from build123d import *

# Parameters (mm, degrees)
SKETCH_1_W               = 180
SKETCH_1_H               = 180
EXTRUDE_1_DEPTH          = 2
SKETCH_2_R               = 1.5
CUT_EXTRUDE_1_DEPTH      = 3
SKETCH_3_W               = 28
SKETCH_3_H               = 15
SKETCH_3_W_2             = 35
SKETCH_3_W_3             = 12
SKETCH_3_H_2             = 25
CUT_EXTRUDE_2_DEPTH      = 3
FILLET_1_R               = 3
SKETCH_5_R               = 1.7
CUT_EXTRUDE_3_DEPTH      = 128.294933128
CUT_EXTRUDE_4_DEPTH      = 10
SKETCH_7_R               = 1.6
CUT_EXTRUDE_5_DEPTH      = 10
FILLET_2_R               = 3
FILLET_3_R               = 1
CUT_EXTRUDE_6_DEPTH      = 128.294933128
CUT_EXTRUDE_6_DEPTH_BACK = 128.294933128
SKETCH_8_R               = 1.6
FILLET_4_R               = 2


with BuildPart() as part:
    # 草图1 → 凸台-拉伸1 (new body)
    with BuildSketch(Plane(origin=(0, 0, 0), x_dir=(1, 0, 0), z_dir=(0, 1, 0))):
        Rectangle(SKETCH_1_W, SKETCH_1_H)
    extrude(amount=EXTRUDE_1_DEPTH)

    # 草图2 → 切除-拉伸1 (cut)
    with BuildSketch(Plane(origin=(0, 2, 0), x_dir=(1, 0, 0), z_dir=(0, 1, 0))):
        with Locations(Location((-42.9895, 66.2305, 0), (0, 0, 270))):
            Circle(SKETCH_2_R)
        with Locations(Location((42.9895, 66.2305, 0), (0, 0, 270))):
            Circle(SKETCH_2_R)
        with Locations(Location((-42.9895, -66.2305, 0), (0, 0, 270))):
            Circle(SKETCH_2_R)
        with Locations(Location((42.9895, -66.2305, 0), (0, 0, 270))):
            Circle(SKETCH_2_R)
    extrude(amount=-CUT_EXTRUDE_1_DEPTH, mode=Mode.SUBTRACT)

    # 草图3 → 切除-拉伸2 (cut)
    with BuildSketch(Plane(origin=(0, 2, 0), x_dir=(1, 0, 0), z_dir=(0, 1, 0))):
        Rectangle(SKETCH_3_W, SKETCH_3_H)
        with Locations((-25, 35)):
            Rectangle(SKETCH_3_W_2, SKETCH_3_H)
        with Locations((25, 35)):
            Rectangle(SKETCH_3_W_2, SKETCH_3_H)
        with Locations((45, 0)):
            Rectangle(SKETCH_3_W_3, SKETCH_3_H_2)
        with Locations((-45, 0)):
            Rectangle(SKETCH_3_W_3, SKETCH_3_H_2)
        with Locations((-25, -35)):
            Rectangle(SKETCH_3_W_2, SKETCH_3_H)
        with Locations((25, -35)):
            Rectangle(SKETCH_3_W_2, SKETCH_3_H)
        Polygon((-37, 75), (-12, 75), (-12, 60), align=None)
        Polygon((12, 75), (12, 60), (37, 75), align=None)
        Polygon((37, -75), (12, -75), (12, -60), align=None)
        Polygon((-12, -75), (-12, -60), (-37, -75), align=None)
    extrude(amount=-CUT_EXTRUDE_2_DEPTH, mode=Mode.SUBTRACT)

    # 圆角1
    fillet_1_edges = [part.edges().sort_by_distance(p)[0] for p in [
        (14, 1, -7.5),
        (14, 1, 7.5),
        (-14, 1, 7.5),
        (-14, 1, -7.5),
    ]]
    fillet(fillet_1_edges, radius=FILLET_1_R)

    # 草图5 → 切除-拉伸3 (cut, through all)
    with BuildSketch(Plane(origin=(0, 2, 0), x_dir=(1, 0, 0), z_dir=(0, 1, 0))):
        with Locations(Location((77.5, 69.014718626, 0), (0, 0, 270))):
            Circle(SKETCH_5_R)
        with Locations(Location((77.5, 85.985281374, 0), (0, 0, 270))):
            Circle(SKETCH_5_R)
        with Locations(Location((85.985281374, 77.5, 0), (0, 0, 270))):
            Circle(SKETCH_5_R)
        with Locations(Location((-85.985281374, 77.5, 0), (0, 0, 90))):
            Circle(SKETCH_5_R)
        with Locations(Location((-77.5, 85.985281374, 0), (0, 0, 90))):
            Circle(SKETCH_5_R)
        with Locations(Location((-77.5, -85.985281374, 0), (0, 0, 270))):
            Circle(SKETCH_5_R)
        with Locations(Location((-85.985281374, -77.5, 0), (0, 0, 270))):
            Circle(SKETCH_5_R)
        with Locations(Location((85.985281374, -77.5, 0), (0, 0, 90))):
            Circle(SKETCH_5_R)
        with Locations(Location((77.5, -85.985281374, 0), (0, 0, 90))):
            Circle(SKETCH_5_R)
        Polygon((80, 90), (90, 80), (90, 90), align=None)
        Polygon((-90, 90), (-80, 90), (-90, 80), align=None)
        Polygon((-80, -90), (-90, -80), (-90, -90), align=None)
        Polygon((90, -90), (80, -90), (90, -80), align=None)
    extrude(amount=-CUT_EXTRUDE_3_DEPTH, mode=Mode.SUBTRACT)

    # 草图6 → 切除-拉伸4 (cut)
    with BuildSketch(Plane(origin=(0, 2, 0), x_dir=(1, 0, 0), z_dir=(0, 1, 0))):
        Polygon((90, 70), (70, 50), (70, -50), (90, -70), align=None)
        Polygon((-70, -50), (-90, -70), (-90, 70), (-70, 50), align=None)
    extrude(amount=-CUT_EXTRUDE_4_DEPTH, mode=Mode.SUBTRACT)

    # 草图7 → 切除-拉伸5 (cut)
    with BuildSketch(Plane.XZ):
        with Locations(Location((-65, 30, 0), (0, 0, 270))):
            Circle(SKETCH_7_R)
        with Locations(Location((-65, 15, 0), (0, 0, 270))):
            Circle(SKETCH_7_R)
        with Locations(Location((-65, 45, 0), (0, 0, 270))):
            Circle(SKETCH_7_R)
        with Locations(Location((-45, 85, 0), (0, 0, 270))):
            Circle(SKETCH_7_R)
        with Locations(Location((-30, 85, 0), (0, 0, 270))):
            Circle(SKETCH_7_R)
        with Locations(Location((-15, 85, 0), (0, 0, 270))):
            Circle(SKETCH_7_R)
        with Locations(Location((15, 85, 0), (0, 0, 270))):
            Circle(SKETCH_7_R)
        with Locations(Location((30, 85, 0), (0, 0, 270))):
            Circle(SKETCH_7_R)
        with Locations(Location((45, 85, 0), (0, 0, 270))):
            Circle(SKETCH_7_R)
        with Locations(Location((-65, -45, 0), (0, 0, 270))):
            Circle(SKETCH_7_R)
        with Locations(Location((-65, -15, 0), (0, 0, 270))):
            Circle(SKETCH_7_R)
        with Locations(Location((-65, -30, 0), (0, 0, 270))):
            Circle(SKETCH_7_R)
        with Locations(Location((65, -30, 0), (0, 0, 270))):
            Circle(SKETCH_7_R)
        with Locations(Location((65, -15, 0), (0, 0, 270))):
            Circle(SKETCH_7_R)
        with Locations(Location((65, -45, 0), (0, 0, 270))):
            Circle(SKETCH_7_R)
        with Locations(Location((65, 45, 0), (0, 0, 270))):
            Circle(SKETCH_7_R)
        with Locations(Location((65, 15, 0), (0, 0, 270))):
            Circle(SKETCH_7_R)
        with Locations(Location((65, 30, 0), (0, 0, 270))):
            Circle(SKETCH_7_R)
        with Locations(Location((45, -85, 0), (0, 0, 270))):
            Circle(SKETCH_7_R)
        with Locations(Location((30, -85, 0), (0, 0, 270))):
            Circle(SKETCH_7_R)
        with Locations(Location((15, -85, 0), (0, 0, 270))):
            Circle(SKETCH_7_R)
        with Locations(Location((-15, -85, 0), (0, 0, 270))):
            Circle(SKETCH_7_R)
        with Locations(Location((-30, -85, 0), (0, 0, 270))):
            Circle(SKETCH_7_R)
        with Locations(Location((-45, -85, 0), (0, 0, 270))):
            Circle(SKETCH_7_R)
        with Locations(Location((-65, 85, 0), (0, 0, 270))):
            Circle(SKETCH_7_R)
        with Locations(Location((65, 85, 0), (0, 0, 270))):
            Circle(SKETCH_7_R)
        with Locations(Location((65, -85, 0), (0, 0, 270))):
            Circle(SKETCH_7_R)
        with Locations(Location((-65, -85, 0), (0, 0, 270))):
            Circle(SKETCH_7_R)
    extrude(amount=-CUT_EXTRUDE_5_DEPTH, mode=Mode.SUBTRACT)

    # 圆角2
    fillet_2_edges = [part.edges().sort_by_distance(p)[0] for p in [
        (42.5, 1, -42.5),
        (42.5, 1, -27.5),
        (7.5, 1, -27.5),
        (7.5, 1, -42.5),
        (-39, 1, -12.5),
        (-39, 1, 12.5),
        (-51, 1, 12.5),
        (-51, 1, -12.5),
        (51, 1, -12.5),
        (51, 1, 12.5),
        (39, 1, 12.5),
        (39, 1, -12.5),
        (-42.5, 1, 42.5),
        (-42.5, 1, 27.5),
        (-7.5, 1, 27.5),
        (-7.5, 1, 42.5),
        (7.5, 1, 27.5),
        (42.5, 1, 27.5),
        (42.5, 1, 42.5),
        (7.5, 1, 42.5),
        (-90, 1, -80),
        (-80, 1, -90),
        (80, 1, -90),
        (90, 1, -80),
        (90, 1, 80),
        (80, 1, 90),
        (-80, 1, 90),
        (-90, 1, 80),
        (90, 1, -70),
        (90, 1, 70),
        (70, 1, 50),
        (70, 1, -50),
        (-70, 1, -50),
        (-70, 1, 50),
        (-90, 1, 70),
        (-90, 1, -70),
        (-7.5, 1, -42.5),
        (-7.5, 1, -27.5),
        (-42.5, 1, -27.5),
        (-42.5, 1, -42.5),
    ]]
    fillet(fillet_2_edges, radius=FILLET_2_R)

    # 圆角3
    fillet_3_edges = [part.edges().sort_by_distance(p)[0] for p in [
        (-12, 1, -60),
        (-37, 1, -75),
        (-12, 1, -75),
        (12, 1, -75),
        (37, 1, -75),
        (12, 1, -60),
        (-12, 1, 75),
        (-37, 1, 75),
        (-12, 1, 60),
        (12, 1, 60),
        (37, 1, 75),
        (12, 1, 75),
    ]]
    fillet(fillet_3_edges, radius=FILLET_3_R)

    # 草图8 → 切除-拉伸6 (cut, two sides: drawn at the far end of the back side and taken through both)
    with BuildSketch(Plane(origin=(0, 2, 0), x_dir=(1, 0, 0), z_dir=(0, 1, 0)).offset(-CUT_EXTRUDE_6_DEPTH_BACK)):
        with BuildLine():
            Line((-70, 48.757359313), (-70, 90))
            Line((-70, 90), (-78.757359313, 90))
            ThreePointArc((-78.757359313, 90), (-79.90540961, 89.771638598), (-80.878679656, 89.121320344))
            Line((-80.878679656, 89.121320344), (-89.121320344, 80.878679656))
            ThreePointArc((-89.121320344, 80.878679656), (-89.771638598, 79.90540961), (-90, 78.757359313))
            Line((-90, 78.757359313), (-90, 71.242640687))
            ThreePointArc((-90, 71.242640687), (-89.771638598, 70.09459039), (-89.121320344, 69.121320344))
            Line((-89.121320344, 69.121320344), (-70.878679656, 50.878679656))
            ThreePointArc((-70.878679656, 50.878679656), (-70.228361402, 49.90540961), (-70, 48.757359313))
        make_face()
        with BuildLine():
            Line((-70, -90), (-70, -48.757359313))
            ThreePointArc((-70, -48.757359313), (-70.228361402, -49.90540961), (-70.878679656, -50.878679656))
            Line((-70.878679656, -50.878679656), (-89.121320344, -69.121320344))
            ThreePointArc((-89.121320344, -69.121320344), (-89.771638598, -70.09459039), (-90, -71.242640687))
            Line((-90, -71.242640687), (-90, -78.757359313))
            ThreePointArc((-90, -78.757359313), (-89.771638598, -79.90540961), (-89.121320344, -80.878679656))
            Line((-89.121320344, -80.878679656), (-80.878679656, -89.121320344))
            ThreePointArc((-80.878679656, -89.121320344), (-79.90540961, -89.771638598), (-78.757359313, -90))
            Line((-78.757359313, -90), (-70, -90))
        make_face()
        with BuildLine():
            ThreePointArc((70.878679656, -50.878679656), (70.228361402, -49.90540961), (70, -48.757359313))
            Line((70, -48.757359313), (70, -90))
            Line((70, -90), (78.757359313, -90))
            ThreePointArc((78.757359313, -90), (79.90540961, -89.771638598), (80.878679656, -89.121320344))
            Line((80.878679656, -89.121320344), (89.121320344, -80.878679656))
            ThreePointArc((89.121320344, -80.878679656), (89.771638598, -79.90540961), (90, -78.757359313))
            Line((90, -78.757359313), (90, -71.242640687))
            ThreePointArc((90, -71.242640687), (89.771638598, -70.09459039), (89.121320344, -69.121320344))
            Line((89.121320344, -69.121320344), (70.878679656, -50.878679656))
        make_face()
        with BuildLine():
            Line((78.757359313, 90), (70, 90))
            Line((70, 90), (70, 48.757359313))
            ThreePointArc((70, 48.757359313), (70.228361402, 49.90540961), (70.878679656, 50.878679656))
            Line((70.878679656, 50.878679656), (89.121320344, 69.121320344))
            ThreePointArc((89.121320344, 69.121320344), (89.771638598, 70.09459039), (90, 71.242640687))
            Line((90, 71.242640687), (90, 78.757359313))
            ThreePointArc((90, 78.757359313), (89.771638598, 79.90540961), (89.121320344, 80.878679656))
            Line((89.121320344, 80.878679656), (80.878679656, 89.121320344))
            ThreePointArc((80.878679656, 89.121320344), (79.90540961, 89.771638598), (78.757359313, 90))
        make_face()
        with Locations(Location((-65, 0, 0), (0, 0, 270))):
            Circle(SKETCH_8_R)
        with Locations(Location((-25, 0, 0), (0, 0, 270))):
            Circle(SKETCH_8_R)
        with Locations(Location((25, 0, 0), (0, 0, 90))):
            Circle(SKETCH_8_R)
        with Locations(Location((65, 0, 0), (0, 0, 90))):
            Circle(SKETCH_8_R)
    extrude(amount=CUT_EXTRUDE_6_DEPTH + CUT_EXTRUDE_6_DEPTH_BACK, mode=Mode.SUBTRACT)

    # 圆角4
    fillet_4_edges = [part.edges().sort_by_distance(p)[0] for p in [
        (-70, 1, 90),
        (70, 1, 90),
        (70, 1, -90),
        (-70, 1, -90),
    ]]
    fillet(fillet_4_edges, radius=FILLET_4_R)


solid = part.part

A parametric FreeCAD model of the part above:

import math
import FreeCAD as App
import Part
import Sketcher
from FreeCAD import Vector


def edges_at(feature, points):
    """Names of the edges that pass closest to the given points."""
    edges = feature.Shape.Edges
    near = lambda p: min(range(len(edges)), key=lambda i: edges[i].distToShape(Part.Vertex(*p))[0])
    return sorted({f"Edge{near(p) + 1}" for p in points})

doc = App.newDocument("Part")
body = doc.addObject("PartDesign::Body", "Body")

# Sketch on XZ plane
sketch1 = body.newObject("Sketcher::SketchObject", "Sketch")
sketch1.AttachmentSupport = (doc.getObject("XZ_Plane"), [""])
sketch1.MapMode = "FlatFace"
sketch1.addGeometry(Part.LineSegment(Vector(-90, -90, 0), Vector(-90, 90, 0)), False)
sketch1.addGeometry(Part.LineSegment(Vector(-90, 90, 0), Vector(90, 90, 0)), False)
sketch1.addGeometry(Part.LineSegment(Vector(90, 90, 0), Vector(90, -90, 0)), False)
sketch1.addGeometry(Part.LineSegment(Vector(90, -90, 0), Vector(-90, -90, 0)), False)
sketch1.addConstraint(Sketcher.Constraint("Coincident", 0, 2, 1, 1))
sketch1.addConstraint(Sketcher.Constraint("Coincident", 1, 2, 2, 1))
sketch1.addConstraint(Sketcher.Constraint("Coincident", 2, 2, 3, 1))
sketch1.addConstraint(Sketcher.Constraint("Coincident", 3, 2, 0, 1))
sketch1.addConstraint(Sketcher.Constraint("Vertical", 0))
sketch1.addConstraint(Sketcher.Constraint("Horizontal", 1))
sketch1.addConstraint(Sketcher.Constraint("Vertical", 2))
sketch1.addConstraint(Sketcher.Constraint("Horizontal", 3))
sketch1.addConstraint(Sketcher.Constraint("Symmetric", 0, 2, 2, 2, -1, 1))
sketch1.addConstraint(Sketcher.Constraint("Equal", 3, 0))
sketch1.addConstraint(Sketcher.Constraint("DistanceX", 1, 1, 1, 2, 180.0))
pad1 = body.newObject("PartDesign::Pad", "Pad")
pad1.Profile = sketch1
pad1.Length = 2
pad1.Reversed = True

# Sketch on XZ plane
sketch2 = body.newObject("Sketcher::SketchObject", "Sketch001")
sketch2.AttachmentSupport = (doc.getObject("XZ_Plane"), [""])
sketch2.MapMode = "FlatFace"
sketch2.AttachmentOffset = App.Placement(Vector(0, 0, -2), App.Rotation())
sketch2.addGeometry(Part.Circle(Vector(-42.9895, -66.2305, 0), Vector(0, 0, 1), 1.5), False)
sketch2.addGeometry(Part.Circle(Vector(42.9895, -66.2305, 0), Vector(0, 0, 1), 1.5), False)
sketch2.addGeometry(Part.Circle(Vector(-42.9895, 66.2305, 0), Vector(0, 0, 1), 1.5), False)
sketch2.addGeometry(Part.Circle(Vector(42.9895, 66.2305, 0), Vector(0, 0, 1), 1.5), False)
sketch2.addConstraint(Sketcher.Constraint("Equal", 0, 1))
sketch2.addConstraint(Sketcher.Constraint("Equal", 1, 2))
sketch2.addConstraint(Sketcher.Constraint("Equal", 2, 3))
sketch2.addConstraint(Sketcher.Constraint("Symmetric", 1, 3, 2, 3, -1, 1))
sketch2.addConstraint(Sketcher.Constraint("Symmetric", 0, 3, 3, 3, -1, 1))
sketch2.addConstraint(Sketcher.Constraint("Symmetric", 0, 3, 1, 3, -2))
sketch2.addConstraint(Sketcher.Constraint("Diameter", 0, 3.0))
sketch2.addConstraint(Sketcher.Constraint("DistanceX", 0, 3, 1, 3, 85.979))
sketch2.addConstraint(Sketcher.Constraint("DistanceY", 0, 3, 2, 3, 132.461))
pocket1 = body.newObject("PartDesign::Pocket", "Pocket")
pocket1.Profile = sketch2
pocket1.Length = 3
pocket1.Reversed = True

# Sketch on XZ plane
sketch3 = body.newObject("Sketcher::SketchObject", "Sketch002")
sketch3.AttachmentSupport = (doc.getObject("XZ_Plane"), [""])
sketch3.MapMode = "FlatFace"
sketch3.AttachmentOffset = App.Placement(Vector(0, 0, -2), App.Rotation())
sketch3.addGeometry(Part.LineSegment(Vector(-14, -7.5, 0), Vector(-14, 7.5, 0)), False)
sketch3.addGeometry(Part.LineSegment(Vector(-14, 7.5, 0), Vector(14, 7.5, 0)), False)
sketch3.addGeometry(Part.LineSegment(Vector(14, 7.5, 0), Vector(14, -7.5, 0)), False)
sketch3.addGeometry(Part.LineSegment(Vector(14, -7.5, 0), Vector(-14, -7.5, 0)), False)
sketch3.addGeometry(Part.LineSegment(Vector(-42.5, -42.5, 0), Vector(-42.5, -27.5, 0)), False)
sketch3.addGeometry(Part.LineSegment(Vector(-42.5, -27.5, 0), Vector(-7.5, -27.5, 0)), False)
sketch3.addGeometry(Part.LineSegment(Vector(-7.5, -27.5, 0), Vector(-7.5, -42.5, 0)), False)
sketch3.addGeometry(Part.LineSegment(Vector(-7.5, -42.5, 0), Vector(-42.5, -42.5, 0)), False)
sketch3.addGeometry(Part.LineSegment(Vector(7.5, -42.5, 0), Vector(7.5, -27.5, 0)), False)
sketch3.addGeometry(Part.LineSegment(Vector(7.5, -27.5, 0), Vector(42.5, -27.5, 0)), False)
sketch3.addGeometry(Part.LineSegment(Vector(42.5, -27.5, 0), Vector(42.5, -42.5, 0)), False)
sketch3.addGeometry(Part.LineSegment(Vector(42.5, -42.5, 0), Vector(7.5, -42.5, 0)), False)
sketch3.addGeometry(Part.LineSegment(Vector(39, -12.5, 0), Vector(39, 12.5, 0)), False)
sketch3.addGeometry(Part.LineSegment(Vector(39, 12.5, 0), Vector(51, 12.5, 0)), False)
sketch3.addGeometry(Part.LineSegment(Vector(51, 12.5, 0), Vector(51, -12.5, 0)), False)
sketch3.addGeometry(Part.LineSegment(Vector(51, -12.5, 0), Vector(39, -12.5, 0)), False)
sketch3.addGeometry(Part.LineSegment(Vector(-51, -12.5, 0), Vector(-51, 12.5, 0)), False)
sketch3.addGeometry(Part.LineSegment(Vector(-51, 12.5, 0), Vector(-39, 12.5, 0)), False)
sketch3.addGeometry(Part.LineSegment(Vector(-39, 12.5, 0), Vector(-39, -12.5, 0)), False)
sketch3.addGeometry(Part.LineSegment(Vector(-39, -12.5, 0), Vector(-51, -12.5, 0)), False)
sketch3.addGeometry(Part.LineSegment(Vector(-42.5, 27.5, 0), Vector(-42.5, 42.5, 0)), False)
sketch3.addGeometry(Part.LineSegment(Vector(-42.5, 42.5, 0), Vector(-7.5, 42.5, 0)), False)
sketch3.addGeometry(Part.LineSegment(Vector(-7.5, 42.5, 0), Vector(-7.5, 27.5, 0)), False)
sketch3.addGeometry(Part.LineSegment(Vector(-7.5, 27.5, 0), Vector(-42.5, 27.5, 0)), False)
sketch3.addGeometry(Part.LineSegment(Vector(7.5, 27.5, 0), Vector(7.5, 42.5, 0)), False)
sketch3.addGeometry(Part.LineSegment(Vector(7.5, 42.5, 0), Vector(42.5, 42.5, 0)), False)
sketch3.addGeometry(Part.LineSegment(Vector(42.5, 42.5, 0), Vector(42.5, 27.5, 0)), False)
sketch3.addGeometry(Part.LineSegment(Vector(42.5, 27.5, 0), Vector(7.5, 27.5, 0)), False)
sketch3.addGeometry(Part.LineSegment(Vector(-12, -75, 0), Vector(-37, -75, 0)), False)
sketch3.addGeometry(Part.LineSegment(Vector(-37, -75, 0), Vector(-12, -60, 0)), False)
sketch3.addGeometry(Part.LineSegment(Vector(-12, -60, 0), Vector(-12, -75, 0)), False)
sketch3.addGeometry(Part.LineSegment(Vector(12, -75, 0), Vector(12, -60, 0)), False)
sketch3.addGeometry(Part.LineSegment(Vector(12, -60, 0), Vector(37, -75, 0)), False)
sketch3.addGeometry(Part.LineSegment(Vector(37, -75, 0), Vector(12, -75, 0)), False)
sketch3.addGeometry(Part.LineSegment(Vector(12, 75, 0), Vector(37, 75, 0)), False)
sketch3.addGeometry(Part.LineSegment(Vector(37, 75, 0), Vector(12, 60, 0)), False)
sketch3.addGeometry(Part.LineSegment(Vector(12, 60, 0), Vector(12, 75, 0)), False)
sketch3.addGeometry(Part.LineSegment(Vector(-12, 75, 0), Vector(-12, 60, 0)), False)
sketch3.addGeometry(Part.LineSegment(Vector(-12, 60, 0), Vector(-37, 75, 0)), False)
sketch3.addGeometry(Part.LineSegment(Vector(-37, 75, 0), Vector(-12, 75, 0)), False)
sketch3.addConstraint(Sketcher.Constraint("Coincident", 0, 2, 1, 1))
sketch3.addConstraint(Sketcher.Constraint("Coincident", 1, 2, 2, 1))
sketch3.addConstraint(Sketcher.Constraint("Coincident", 2, 2, 3, 1))
sketch3.addConstraint(Sketcher.Constraint("Coincident", 3, 2, 0, 1))
sketch3.addConstraint(Sketcher.Constraint("Coincident", 4, 2, 5, 1))
sketch3.addConstraint(Sketcher.Constraint("Coincident", 5, 2, 6, 1))
sketch3.addConstraint(Sketcher.Constraint("Coincident", 6, 2, 7, 1))
sketch3.addConstraint(Sketcher.Constraint("Coincident", 7, 2, 4, 1))
sketch3.addConstraint(Sketcher.Constraint("Coincident", 8, 2, 9, 1))
sketch3.addConstraint(Sketcher.Constraint("Coincident", 9, 2, 10, 1))
sketch3.addConstraint(Sketcher.Constraint("Coincident", 10, 2, 11, 1))
sketch3.addConstraint(Sketcher.Constraint("Coincident", 11, 2, 8, 1))
sketch3.addConstraint(Sketcher.Constraint("Coincident", 12, 2, 13, 1))
sketch3.addConstraint(Sketcher.Constraint("Coincident", 13, 2, 14, 1))
sketch3.addConstraint(Sketcher.Constraint("Coincident", 14, 2, 15, 1))
sketch3.addConstraint(Sketcher.Constraint("Coincident", 15, 2, 12, 1))
sketch3.addConstraint(Sketcher.Constraint("Coincident", 16, 2, 17, 1))
sketch3.addConstraint(Sketcher.Constraint("Coincident", 17, 2, 18, 1))
sketch3.addConstraint(Sketcher.Constraint("Coincident", 18, 2, 19, 1))
sketch3.addConstraint(Sketcher.Constraint("Coincident", 19, 2, 16, 1))
sketch3.addConstraint(Sketcher.Constraint("Coincident", 20, 2, 21, 1))
sketch3.addConstraint(Sketcher.Constraint("Coincident", 21, 2, 22, 1))
sketch3.addConstraint(Sketcher.Constraint("Coincident", 22, 2, 23, 1))
sketch3.addConstraint(Sketcher.Constraint("Coincident", 23, 2, 20, 1))
sketch3.addConstraint(Sketcher.Constraint("Coincident", 24, 2, 25, 1))
sketch3.addConstraint(Sketcher.Constraint("Coincident", 25, 2, 26, 1))
sketch3.addConstraint(Sketcher.Constraint("Coincident", 26, 2, 27, 1))
sketch3.addConstraint(Sketcher.Constraint("Coincident", 27, 2, 24, 1))
sketch3.addConstraint(Sketcher.Constraint("Coincident", 28, 2, 29, 1))
sketch3.addConstraint(Sketcher.Constraint("Coincident", 29, 2, 30, 1))
sketch3.addConstraint(Sketcher.Constraint("Coincident", 30, 2, 28, 1))
sketch3.addConstraint(Sketcher.Constraint("Coincident", 31, 2, 32, 1))
sketch3.addConstraint(Sketcher.Constraint("Coincident", 32, 2, 33, 1))
sketch3.addConstraint(Sketcher.Constraint("Coincident", 33, 2, 31, 1))
sketch3.addConstraint(Sketcher.Constraint("Coincident", 34, 2, 35, 1))
sketch3.addConstraint(Sketcher.Constraint("Coincident", 35, 2, 36, 1))
sketch3.addConstraint(Sketcher.Constraint("Coincident", 36, 2, 34, 1))
sketch3.addConstraint(Sketcher.Constraint("Coincident", 37, 2, 38, 1))
sketch3.addConstraint(Sketcher.Constraint("Coincident", 38, 2, 39, 1))
sketch3.addConstraint(Sketcher.Constraint("Coincident", 39, 2, 37, 1))
sketch3.addConstraint(Sketcher.Constraint("Vertical", 0))
sketch3.addConstraint(Sketcher.Constraint("Horizontal", 1))
sketch3.addConstraint(Sketcher.Constraint("Vertical", 2))
sketch3.addConstraint(Sketcher.Constraint("Horizontal", 3))
sketch3.addConstraint(Sketcher.Constraint("Vertical", 4))
sketch3.addConstraint(Sketcher.Constraint("Horizontal", 5))
sketch3.addConstraint(Sketcher.Constraint("Vertical", 6))
sketch3.addConstraint(Sketcher.Constraint("Horizontal", 7))
sketch3.addConstraint(Sketcher.Constraint("Vertical", 8))
sketch3.addConstraint(Sketcher.Constraint("Horizontal", 9))
sketch3.addConstraint(Sketcher.Constraint("Vertical", 10))
sketch3.addConstraint(Sketcher.Constraint("Horizontal", 11))
sketch3.addConstraint(Sketcher.Constraint("Vertical", 12))
sketch3.addConstraint(Sketcher.Constraint("Horizontal", 13))
sketch3.addConstraint(Sketcher.Constraint("Vertical", 14))
sketch3.addConstraint(Sketcher.Constraint("Horizontal", 15))
sketch3.addConstraint(Sketcher.Constraint("Vertical", 16))
sketch3.addConstraint(Sketcher.Constraint("Horizontal", 17))
sketch3.addConstraint(Sketcher.Constraint("Vertical", 18))
sketch3.addConstraint(Sketcher.Constraint("Horizontal", 19))
sketch3.addConstraint(Sketcher.Constraint("Vertical", 20))
sketch3.addConstraint(Sketcher.Constraint("Horizontal", 21))
sketch3.addConstraint(Sketcher.Constraint("Vertical", 22))
sketch3.addConstraint(Sketcher.Constraint("Horizontal", 23))
sketch3.addConstraint(Sketcher.Constraint("Vertical", 24))
sketch3.addConstraint(Sketcher.Constraint("Horizontal", 25))
sketch3.addConstraint(Sketcher.Constraint("Vertical", 26))
sketch3.addConstraint(Sketcher.Constraint("Horizontal", 27))
sketch3.addConstraint(Sketcher.Constraint("Horizontal", 28))
sketch3.addConstraint(Sketcher.Constraint("Vertical", 30))
sketch3.addConstraint(Sketcher.Constraint("Vertical", 31))
sketch3.addConstraint(Sketcher.Constraint("Horizontal", 33))
sketch3.addConstraint(Sketcher.Constraint("Horizontal", 34))
sketch3.addConstraint(Sketcher.Constraint("Vertical", 36))
sketch3.addConstraint(Sketcher.Constraint("Vertical", 37))
sketch3.addConstraint(Sketcher.Constraint("Horizontal", 39))
sketch3.addConstraint(Sketcher.Constraint("Symmetric", 0, 2, 2, 2, -1, 1))
sketch3.addConstraint(Sketcher.Constraint("Symmetric", 14, 2, 16, 2, -1, 1))
sketch3.addConstraint(Sketcher.Constraint("Symmetric", 12, 2, 18, 2, -1, 1))
sketch3.addConstraint(Sketcher.Constraint("Symmetric", 10, 2, 20, 2, -1, 1))
sketch3.addConstraint(Sketcher.Constraint("Symmetric", 8, 2, 22, 2, -1, 1))
sketch3.addConstraint(Sketcher.Constraint("Symmetric", 6, 2, 24, 2, -1, 1))
sketch3.addConstraint(Sketcher.Constraint("Symmetric", 4, 2, 26, 2, -1, 1))
sketch3.addConstraint(Sketcher.Constraint("Symmetric", 28, 2, 34, 2, -1, 1))
sketch3.addConstraint(Sketcher.Constraint("Symmetric", 29, 2, 35, 2, -1, 1))
sketch3.addConstraint(Sketcher.Constraint("Symmetric", 31, 2, 37, 2, -1, 1))
sketch3.addConstraint(Sketcher.Constraint("Symmetric", 32, 2, 38, 2, -1, 1))
sketch3.addConstraint(Sketcher.Constraint("Symmetric", 5, 2, 8, 2, -2))
sketch3.addConstraint(Sketcher.Constraint("Symmetric", 7, 2, 10, 2, -2))
sketch3.addConstraint(Sketcher.Constraint("Symmetric", 29, 2, 31, 2, -2))
sketch3.addConstraint(Sketcher.Constraint("Symmetric", 28, 2, 32, 2, -2))
sketch3.addConstraint(Sketcher.Constraint("Horizontal", 13, 2, 16, 2))
sketch3.addConstraint(Sketcher.Constraint("Equal", 2, 4))
sketch3.addConstraint(Sketcher.Constraint("Equal", 39, 12))
sketch3.addConstraint(Sketcher.Constraint("Equal", 26, 30))
sketch3.addConstraint(Sketcher.Constraint("DistanceX", 1, 1, 1, 2, 28.0))
sketch3.addConstraint(Sketcher.Constraint("DistanceX", 5, 1, 5, 2, 35.0))
sketch3.addConstraint(Sketcher.Constraint("DistanceX", 13, 1, 13, 2, 12.0))
sketch3.addConstraint(Sketcher.Constraint("DistanceX", 28, 2, 28, 1, 25.0))
sketch3.addConstraint(Sketcher.Constraint("DistanceY", 0, 1, 0, 2, 15.0))
sketch3.addConstraint(Sketcher.Constraint("DistanceX", -1, 1, 12, 2, 39.0))
sketch3.addConstraint(Sketcher.Constraint("DistanceX", 28, 2, -1, 1, 37.0))
sketch3.addConstraint(Sketcher.Constraint("DistanceY", 28, 2, -1, 1, 75.0))
sketch3.addConstraint(Sketcher.Constraint("DistanceY", 4, 2, 3, 2, 20.0))
sketch3.addConstraint(Sketcher.Constraint("DistanceX", 5, 2, 8, 2, 15.0))
pocket2 = body.newObject("PartDesign::Pocket", "Pocket001")
pocket2.Profile = sketch3
pocket2.Length = 3
pocket2.Reversed = True
doc.recompute()

fillet = body.newObject("PartDesign::Fillet", "Fillet")
fillet.Base = (pocket2, edges_at(pocket2, [
    (14, 1, -7.5),
    (14, 1, 7.5),
    (-14, 1, 7.5),
    (-14, 1, -7.5),
]))
fillet.Radius = 3

# Sketch on XZ plane
sketch4 = body.newObject("Sketcher::SketchObject", "Sketch003")
sketch4.AttachmentSupport = (doc.getObject("XZ_Plane"), [""])
sketch4.MapMode = "FlatFace"
sketch4.AttachmentOffset = App.Placement(Vector(0, 0, -2), App.Rotation())
sketch4.addGeometry(Part.Circle(Vector(77.5, -69.014719, 0), Vector(0, 0, 1), 1.7), False)
sketch4.addGeometry(Part.Circle(Vector(77.5, -85.985281, 0), Vector(0, 0, 1), 1.7), False)
sketch4.addGeometry(Part.Circle(Vector(85.985281, -77.5, 0), Vector(0, 0, 1), 1.7), False)
sketch4.addGeometry(Part.Circle(Vector(-85.985281, -77.5, 0), Vector(0, 0, 1), 1.7), False)
sketch4.addGeometry(Part.Circle(Vector(-77.5, -85.985281, 0), Vector(0, 0, 1), 1.7), False)
sketch4.addGeometry(Part.Circle(Vector(-77.5, 85.985281, 0), Vector(0, 0, 1), 1.7), False)
sketch4.addGeometry(Part.Circle(Vector(-85.985281, 77.5, 0), Vector(0, 0, 1), 1.7), False)
sketch4.addGeometry(Part.Circle(Vector(85.985281, 77.5, 0), Vector(0, 0, 1), 1.7), False)
sketch4.addGeometry(Part.Circle(Vector(77.5, 85.985281, 0), Vector(0, 0, 1), 1.7), False)
sketch4.addGeometry(Part.LineSegment(Vector(80, -90, 0), Vector(90, -80, 0)), False)
sketch4.addGeometry(Part.LineSegment(Vector(90, -80, 0), Vector(90, -90, 0)), False)
sketch4.addGeometry(Part.LineSegment(Vector(90, -90, 0), Vector(80, -90, 0)), False)
sketch4.addGeometry(Part.LineSegment(Vector(-80, -90, 0), Vector(-90, -90, 0)), False)
sketch4.addGeometry(Part.LineSegment(Vector(-90, -90, 0), Vector(-90, -80, 0)), False)
sketch4.addGeometry(Part.LineSegment(Vector(-90, -80, 0), Vector(-80, -90, 0)), False)
sketch4.addGeometry(Part.LineSegment(Vector(-80, 90, 0), Vector(-90, 80, 0)), False)
sketch4.addGeometry(Part.LineSegment(Vector(-90, 80, 0), Vector(-90, 90, 0)), False)
sketch4.addGeometry(Part.LineSegment(Vector(-90, 90, 0), Vector(-80, 90, 0)), False)
sketch4.addGeometry(Part.LineSegment(Vector(80, 90, 0), Vector(90, 90, 0)), False)
sketch4.addGeometry(Part.LineSegment(Vector(90, 90, 0), Vector(90, 80, 0)), False)
sketch4.addGeometry(Part.LineSegment(Vector(90, 80, 0), Vector(80, 90, 0)), False)
sketch4.addConstraint(Sketcher.Constraint("Coincident", 9, 2, 10, 1))
sketch4.addConstraint(Sketcher.Constraint("Coincident", 10, 2, 11, 1))
sketch4.addConstraint(Sketcher.Constraint("Coincident", 11, 2, 9, 1))
sketch4.addConstraint(Sketcher.Constraint("Coincident", 12, 2, 13, 1))
sketch4.addConstraint(Sketcher.Constraint("Coincident", 13, 2, 14, 1))
sketch4.addConstraint(Sketcher.Constraint("Coincident", 14, 2, 12, 1))
sketch4.addConstraint(Sketcher.Constraint("Coincident", 15, 2, 16, 1))
sketch4.addConstraint(Sketcher.Constraint("Coincident", 16, 2, 17, 1))
sketch4.addConstraint(Sketcher.Constraint("Coincident", 17, 2, 15, 1))
sketch4.addConstraint(Sketcher.Constraint("Coincident", 18, 2, 19, 1))
sketch4.addConstraint(Sketcher.Constraint("Coincident", 19, 2, 20, 1))
sketch4.addConstraint(Sketcher.Constraint("Coincident", 20, 2, 18, 1))
sketch4.addConstraint(Sketcher.Constraint("Vertical", 10))
sketch4.addConstraint(Sketcher.Constraint("Horizontal", 11))
sketch4.addConstraint(Sketcher.Constraint("Horizontal", 12))
sketch4.addConstraint(Sketcher.Constraint("Vertical", 13))
sketch4.addConstraint(Sketcher.Constraint("Vertical", 16))
sketch4.addConstraint(Sketcher.Constraint("Horizontal", 17))
sketch4.addConstraint(Sketcher.Constraint("Horizontal", 18))
sketch4.addConstraint(Sketcher.Constraint("Vertical", 19))
sketch4.addConstraint(Sketcher.Constraint("Equal", 0, 1))
sketch4.addConstraint(Sketcher.Constraint("Equal", 1, 2))
sketch4.addConstraint(Sketcher.Constraint("Equal", 2, 3))
sketch4.addConstraint(Sketcher.Constraint("Equal", 3, 4))
sketch4.addConstraint(Sketcher.Constraint("Equal", 4, 5))
sketch4.addConstraint(Sketcher.Constraint("Equal", 5, 6))
sketch4.addConstraint(Sketcher.Constraint("Equal", 6, 7))
sketch4.addConstraint(Sketcher.Constraint("Equal", 7, 8))
sketch4.addConstraint(Sketcher.Constraint("Symmetric", 1, 3, 5, 3, -1, 1))
sketch4.addConstraint(Sketcher.Constraint("Symmetric", 2, 3, 6, 3, -1, 1))
sketch4.addConstraint(Sketcher.Constraint("Symmetric", 3, 3, 7, 3, -1, 1))
sketch4.addConstraint(Sketcher.Constraint("Symmetric", 4, 3, 8, 3, -1, 1))
sketch4.addConstraint(Sketcher.Constraint("Symmetric", 9, 2, 15, 2, -1, 1))
sketch4.addConstraint(Sketcher.Constraint("Symmetric", 11, 2, 17, 2, -1, 1))
sketch4.addConstraint(Sketcher.Constraint("Symmetric", 12, 2, 18, 2, -1, 1))
sketch4.addConstraint(Sketcher.Constraint("Symmetric", 2, 3, 3, 3, -2))
sketch4.addConstraint(Sketcher.Constraint("Symmetric", 1, 3, 4, 3, -2))
sketch4.addConstraint(Sketcher.Constraint("Symmetric", 10, 2, 12, 2, -2))
sketch4.addConstraint(Sketcher.Constraint("Perpendicular", 9, 14))
sketch4.addConstraint(Sketcher.Constraint("Perpendicular", 15, 20))
sketch4.addConstraint(Sketcher.Constraint("Horizontal", 9, 2, 13, 2))
sketch4.addConstraint(Sketcher.Constraint("Horizontal", 15, 2, 19, 2))
sketch4.addConstraint(Sketcher.Constraint("Vertical", 0, 3, 1, 3))
sketch4.addConstraint(Sketcher.Constraint("Vertical", 14, 2, 17, 2))
sketch4.addConstraint(Sketcher.Constraint("Diameter", 0, 3.4))
sketch4.addConstraint(Sketcher.Constraint("DistanceX", 11, 2, 11, 1, 10.0))
sketch4.addConstraint(Sketcher.Constraint("DistanceX", -1, 1, 9, 2, 90.0))
sketch4.addConstraint(Sketcher.Constraint("DistanceY", 9, 2, -1, 1, 80.0))
sketch4.addConstraint(Sketcher.Constraint("DistanceX", 4, 3, 1, 3, 155.0))
sketch4.addConstraint(Sketcher.Constraint("DistanceY", 0, 3, 5, 3, 155.0))
sketch4.addConstraint(Sketcher.Constraint("DistanceY", 3, 3, 6, 3, 155.0))
sketch4.addConstraint(Sketcher.Constraint("DistanceY", 0, 3, -1, 1, 69.014719))
sketch4.addConstraint(Sketcher.Constraint("DistanceX", -1, 1, 2, 3, 85.985281))
pocket3 = body.newObject("PartDesign::Pocket", "Pocket002")
pocket3.Profile = sketch4
pocket3.Type = "ThroughAll"
pocket3.Reversed = True

# Sketch on XZ plane
sketch5 = body.newObject("Sketcher::SketchObject", "Sketch004")
sketch5.AttachmentSupport = (doc.getObject("XZ_Plane"), [""])
sketch5.MapMode = "FlatFace"
sketch5.AttachmentOffset = App.Placement(Vector(0, 0, -2), App.Rotation())
sketch5.addGeometry(Part.LineSegment(Vector(90, -70, 0), Vector(70, -50, 0)), False)
sketch5.addGeometry(Part.LineSegment(Vector(70, -50, 0), Vector(70, 50, 0)), False)
sketch5.addGeometry(Part.LineSegment(Vector(70, 50, 0), Vector(90, 70, 0)), False)
sketch5.addGeometry(Part.LineSegment(Vector(90, 70, 0), Vector(90, -70, 0)), False)
sketch5.addGeometry(Part.LineSegment(Vector(-90, 70, 0), Vector(-70, 50, 0)), False)
sketch5.addGeometry(Part.LineSegment(Vector(-70, 50, 0), Vector(-70, -50, 0)), False)
sketch5.addGeometry(Part.LineSegment(Vector(-70, -50, 0), Vector(-90, -70, 0)), False)
sketch5.addGeometry(Part.LineSegment(Vector(-90, -70, 0), Vector(-90, 70, 0)), False)
sketch5.addConstraint(Sketcher.Constraint("Coincident", 0, 2, 1, 1))
sketch5.addConstraint(Sketcher.Constraint("Coincident", 1, 2, 2, 1))
sketch5.addConstraint(Sketcher.Constraint("Coincident", 2, 2, 3, 1))
sketch5.addConstraint(Sketcher.Constraint("Coincident", 3, 2, 0, 1))
sketch5.addConstraint(Sketcher.Constraint("Coincident", 4, 2, 5, 1))
sketch5.addConstraint(Sketcher.Constraint("Coincident", 5, 2, 6, 1))
sketch5.addConstraint(Sketcher.Constraint("Coincident", 6, 2, 7, 1))
sketch5.addConstraint(Sketcher.Constraint("Coincident", 7, 2, 4, 1))
sketch5.addConstraint(Sketcher.Constraint("Vertical", 1))
sketch5.addConstraint(Sketcher.Constraint("Vertical", 3))
sketch5.addConstraint(Sketcher.Constraint("Vertical", 5))
sketch5.addConstraint(Sketcher.Constraint("Vertical", 7))
sketch5.addConstraint(Sketcher.Constraint("Symmetric", 0, 2, 4, 2, -1, 1))
sketch5.addConstraint(Sketcher.Constraint("Symmetric", 2, 2, 6, 2, -1, 1))
sketch5.addConstraint(Sketcher.Constraint("Perpendicular", 0, 2))
sketch5.addConstraint(Sketcher.Constraint("Perpendicular", 2, 4))
sketch5.addConstraint(Sketcher.Constraint("Perpendicular", 4, 6))
sketch5.addConstraint(Sketcher.Constraint("Horizontal", 1, 2, 4, 2))
sketch5.addConstraint(Sketcher.Constraint("Horizontal", 3, 2, 6, 2))
sketch5.addConstraint(Sketcher.Constraint("DistanceY", 1, 1, 1, 2, 100.0))
sketch5.addConstraint(Sketcher.Constraint("DistanceY", 3, 2, 3, 1, 140.0))
sketch5.addConstraint(Sketcher.Constraint("DistanceX", -1, 1, 0, 2, 70.0))
pocket4 = body.newObject("PartDesign::Pocket", "Pocket003")
pocket4.Profile = sketch5
pocket4.Length = 10
pocket4.Reversed = True

# Sketch on XZ plane
sketch6 = body.newObject("Sketcher::SketchObject", "Sketch005")
sketch6.AttachmentSupport = (doc.getObject("XZ_Plane"), [""])
sketch6.MapMode = "FlatFace"
sketch6.addGeometry(Part.Circle(Vector(-65, 30, 0), Vector(0, 0, 1), 1.6), False)
sketch6.addGeometry(Part.Circle(Vector(-65, 15, 0), Vector(0, 0, 1), 1.6), False)
sketch6.addGeometry(Part.Circle(Vector(-65, 45, 0), Vector(0, 0, 1), 1.6), False)
sketch6.addGeometry(Part.Circle(Vector(-45, 85, 0), Vector(0, 0, 1), 1.6), False)
sketch6.addGeometry(Part.Circle(Vector(-30, 85, 0), Vector(0, 0, 1), 1.6), False)
sketch6.addGeometry(Part.Circle(Vector(-15, 85, 0), Vector(0, 0, 1), 1.6), False)
sketch6.addGeometry(Part.Circle(Vector(15, 85, 0), Vector(0, 0, 1), 1.6), False)
sketch6.addGeometry(Part.Circle(Vector(30, 85, 0), Vector(0, 0, 1), 1.6), False)
sketch6.addGeometry(Part.Circle(Vector(45, 85, 0), Vector(0, 0, 1), 1.6), False)
sketch6.addGeometry(Part.Circle(Vector(-65, -45, 0), Vector(0, 0, 1), 1.6), False)
sketch6.addGeometry(Part.Circle(Vector(-65, -15, 0), Vector(0, 0, 1), 1.6), False)
sketch6.addGeometry(Part.Circle(Vector(-65, -30, 0), Vector(0, 0, 1), 1.6), False)
sketch6.addGeometry(Part.Circle(Vector(65, -30, 0), Vector(0, 0, 1), 1.6), False)
sketch6.addGeometry(Part.Circle(Vector(65, -15, 0), Vector(0, 0, 1), 1.6), False)
sketch6.addGeometry(Part.Circle(Vector(65, -45, 0), Vector(0, 0, 1), 1.6), False)
sketch6.addGeometry(Part.Circle(Vector(65, 45, 0), Vector(0, 0, 1), 1.6), False)
sketch6.addGeometry(Part.Circle(Vector(65, 15, 0), Vector(0, 0, 1), 1.6), False)
sketch6.addGeometry(Part.Circle(Vector(65, 30, 0), Vector(0, 0, 1), 1.6), False)
sketch6.addGeometry(Part.Circle(Vector(45, -85, 0), Vector(0, 0, 1), 1.6), False)
sketch6.addGeometry(Part.Circle(Vector(30, -85, 0), Vector(0, 0, 1), 1.6), False)
sketch6.addGeometry(Part.Circle(Vector(15, -85, 0), Vector(0, 0, 1), 1.6), False)
sketch6.addGeometry(Part.Circle(Vector(-15, -85, 0), Vector(0, 0, 1), 1.6), False)
sketch6.addGeometry(Part.Circle(Vector(-30, -85, 0), Vector(0, 0, 1), 1.6), False)
sketch6.addGeometry(Part.Circle(Vector(-45, -85, 0), Vector(0, 0, 1), 1.6), False)
sketch6.addGeometry(Part.Circle(Vector(-65, 85, 0), Vector(0, 0, 1), 1.6), False)
sketch6.addGeometry(Part.Circle(Vector(65, 85, 0), Vector(0, 0, 1), 1.6), False)
sketch6.addGeometry(Part.Circle(Vector(65, -85, 0), Vector(0, 0, 1), 1.6), False)
sketch6.addGeometry(Part.Circle(Vector(-65, -85, 0), Vector(0, 0, 1), 1.6), False)
sketch6.addConstraint(Sketcher.Constraint("Equal", 0, 1))
sketch6.addConstraint(Sketcher.Constraint("Equal", 1, 2))
sketch6.addConstraint(Sketcher.Constraint("Equal", 2, 3))
sketch6.addConstraint(Sketcher.Constraint("Equal", 3, 4))
sketch6.addConstraint(Sketcher.Constraint("Equal", 4, 5))
sketch6.addConstraint(Sketcher.Constraint("Equal", 5, 6))
sketch6.addConstraint(Sketcher.Constraint("Equal", 6, 7))
sketch6.addConstraint(Sketcher.Constraint("Equal", 7, 8))
sketch6.addConstraint(Sketcher.Constraint("Equal", 8, 9))
sketch6.addConstraint(Sketcher.Constraint("Equal", 9, 10))
sketch6.addConstraint(Sketcher.Constraint("Equal", 10, 11))
sketch6.addConstraint(Sketcher.Constraint("Equal", 11, 12))
sketch6.addConstraint(Sketcher.Constraint("Equal", 12, 13))
sketch6.addConstraint(Sketcher.Constraint("Equal", 13, 14))
sketch6.addConstraint(Sketcher.Constraint("Equal", 14, 15))
sketch6.addConstraint(Sketcher.Constraint("Equal", 15, 16))
sketch6.addConstraint(Sketcher.Constraint("Equal", 16, 17))
sketch6.addConstraint(Sketcher.Constraint("Equal", 17, 18))
sketch6.addConstraint(Sketcher.Constraint("Equal", 18, 19))
sketch6.addConstraint(Sketcher.Constraint("Equal", 19, 20))
sketch6.addConstraint(Sketcher.Constraint("Equal", 20, 21))
sketch6.addConstraint(Sketcher.Constraint("Equal", 21, 22))
sketch6.addConstraint(Sketcher.Constraint("Equal", 22, 23))
sketch6.addConstraint(Sketcher.Constraint("Equal", 23, 24))
sketch6.addConstraint(Sketcher.Constraint("Equal", 24, 25))
sketch6.addConstraint(Sketcher.Constraint("Equal", 25, 26))
sketch6.addConstraint(Sketcher.Constraint("Equal", 26, 27))
sketch6.addConstraint(Sketcher.Constraint("Symmetric", 0, 3, 12, 3, -1, 1))
sketch6.addConstraint(Sketcher.Constraint("Symmetric", 1, 3, 13, 3, -1, 1))
sketch6.addConstraint(Sketcher.Constraint("Symmetric", 2, 3, 14, 3, -1, 1))
sketch6.addConstraint(Sketcher.Constraint("Symmetric", 9, 3, 15, 3, -1, 1))
sketch6.addConstraint(Sketcher.Constraint("Symmetric", 10, 3, 16, 3, -1, 1))
sketch6.addConstraint(Sketcher.Constraint("Symmetric", 11, 3, 17, 3, -1, 1))
sketch6.addConstraint(Sketcher.Constraint("Symmetric", 3, 3, 18, 3, -1, 1))
sketch6.addConstraint(Sketcher.Constraint("Symmetric", 4, 3, 19, 3, -1, 1))
sketch6.addConstraint(Sketcher.Constraint("Symmetric", 5, 3, 20, 3, -1, 1))
sketch6.addConstraint(Sketcher.Constraint("Symmetric", 6, 3, 21, 3, -1, 1))
sketch6.addConstraint(Sketcher.Constraint("Symmetric", 7, 3, 22, 3, -1, 1))
sketch6.addConstraint(Sketcher.Constraint("Symmetric", 8, 3, 23, 3, -1, 1))
sketch6.addConstraint(Sketcher.Constraint("Symmetric", 24, 3, 26, 3, -1, 1))
sketch6.addConstraint(Sketcher.Constraint("Symmetric", 25, 3, 27, 3, -1, 1))
sketch6.addConstraint(Sketcher.Constraint("Symmetric", 5, 3, 6, 3, -2))
sketch6.addConstraint(Sketcher.Constraint("Symmetric", 4, 3, 7, 3, -2))
sketch6.addConstraint(Sketcher.Constraint("Symmetric", 3, 3, 8, 3, -2))
sketch6.addConstraint(Sketcher.Constraint("Symmetric", 11, 3, 12, 3, -2))
sketch6.addConstraint(Sketcher.Constraint("Symmetric", 10, 3, 13, 3, -2))
sketch6.addConstraint(Sketcher.Constraint("Symmetric", 9, 3, 14, 3, -2))
sketch6.addConstraint(Sketcher.Constraint("Symmetric", 24, 3, 25, 3, -2))
sketch6.addConstraint(Sketcher.Constraint("Horizontal", 3, 3, 4, 3))
sketch6.addConstraint(Sketcher.Constraint("Horizontal", 4, 3, 5, 3))
sketch6.addConstraint(Sketcher.Constraint("Horizontal", 8, 3, 24, 3))
sketch6.addConstraint(Sketcher.Constraint("Vertical", 0, 3, 1, 3))
sketch6.addConstraint(Sketcher.Constraint("Vertical", 1, 3, 2, 3))
sketch6.addConstraint(Sketcher.Constraint("Vertical", 11, 3, 24, 3))
sketch6.addConstraint(Sketcher.Constraint("Diameter", 0, 3.2))
sketch6.addConstraint(Sketcher.Constraint("DistanceX", 0, 3, -1, 1, 65.0))
sketch6.addConstraint(Sketcher.Constraint("DistanceY", -1, 1, 0, 3, 30.0))
sketch6.addConstraint(Sketcher.Constraint("DistanceY", -1, 1, 1, 3, 15.0))
sketch6.addConstraint(Sketcher.Constraint("DistanceY", -1, 1, 2, 3, 45.0))
sketch6.addConstraint(Sketcher.Constraint("DistanceX", 3, 3, -1, 1, 45.0))
sketch6.addConstraint(Sketcher.Constraint("DistanceY", -1, 1, 3, 3, 85.0))
sketch6.addConstraint(Sketcher.Constraint("DistanceX", 4, 3, -1, 1, 30.0))
sketch6.addConstraint(Sketcher.Constraint("DistanceX", 5, 3, -1, 1, 15.0))
pocket5 = body.newObject("PartDesign::Pocket", "Pocket004")
pocket5.Profile = sketch6
pocket5.Length = 10
doc.recompute()

fillet2 = body.newObject("PartDesign::Fillet", "Fillet001")
fillet2.Base = (pocket5, edges_at(pocket5, [
    (42.5, 1, -42.5),
    (42.5, 1, -27.5),
    (7.5, 1, -27.5),
    (7.5, 1, -42.5),
    (-39, 1, -12.5),
    (-39, 1, 12.5),
    (-51, 1, 12.5),
    (-51, 1, -12.5),
    (51, 1, -12.5),
    (51, 1, 12.5),
    (39, 1, 12.5),
    (39, 1, -12.5),
    (-42.5, 1, 42.5),
    (-42.5, 1, 27.5),
    (-7.5, 1, 27.5),
    (-7.5, 1, 42.5),
    (7.5, 1, 27.5),
    (42.5, 1, 27.5),
    (42.5, 1, 42.5),
    (7.5, 1, 42.5),
    (-90, 1, -80),
    (-80, 1, -90),
    (80, 1, -90),
    (90, 1, -80),
    (90, 1, 80),
    (80, 1, 90),
    (-80, 1, 90),
    (-90, 1, 80),
    (90, 1, -70),
    (90, 1, 70),
    (70, 1, 50),
    (70, 1, -50),
    (-70, 1, -50),
    (-70, 1, 50),
    (-90, 1, 70),
    (-90, 1, -70),
    (-7.5, 1, -42.5),
    (-7.5, 1, -27.5),
    (-42.5, 1, -27.5),
    (-42.5, 1, -42.5),
]))
fillet2.Radius = 3
doc.recompute()

fillet3 = body.newObject("PartDesign::Fillet", "Fillet002")
fillet3.Base = (fillet2, edges_at(fillet2, [
    (-12, 1, -60),
    (-37, 1, -75),
    (-12, 1, -75),
    (12, 1, -75),
    (37, 1, -75),
    (12, 1, -60),
    (-12, 1, 75),
    (-37, 1, 75),
    (-12, 1, 60),
    (12, 1, 60),
    (37, 1, 75),
    (12, 1, 75),
]))
fillet3.Radius = 1

# Sketch on XZ plane
sketch7 = body.newObject("Sketcher::SketchObject", "Sketch006")
sketch7.AttachmentSupport = (doc.getObject("XZ_Plane"), [""])
sketch7.MapMode = "FlatFace"
sketch7.AttachmentOffset = App.Placement(Vector(0, 0, -2), App.Rotation())
sketch7.addGeometry(Part.LineSegment(Vector(-70, -48.757359, 0), Vector(-70, -90, 0)), False)
sketch7.addGeometry(Part.LineSegment(Vector(-70, -90, 0), Vector(-78.757359, -90, 0)), False)
sketch7.addGeometry(Part.ArcOfCircle(Part.Circle(Vector(-78.757359, -87, 0), Vector(0, 0, 1), 3), math.radians(-135), math.radians(-90)), False)
sketch7.addGeometry(Part.LineSegment(Vector(-80.87868, -89.12132, 0), Vector(-89.12132, -80.87868, 0)), False)
sketch7.addGeometry(Part.ArcOfCircle(Part.Circle(Vector(-87, -78.757359, 0), Vector(0, 0, 1), 3), math.radians(180), math.radians(225)), False)
sketch7.addGeometry(Part.LineSegment(Vector(-90, -78.757359, 0), Vector(-90, -71.242641, 0)), False)
sketch7.addGeometry(Part.ArcOfCircle(Part.Circle(Vector(-87, -71.242641, 0), Vector(0, 0, 1), 3), math.radians(135), math.radians(180)), False)
sketch7.addGeometry(Part.LineSegment(Vector(-89.12132, -69.12132, 0), Vector(-70.87868, -50.87868, 0)), False)
sketch7.addGeometry(Part.ArcOfCircle(Part.Circle(Vector(-73, -48.757359, 0), Vector(0, 0, 1), 3), math.radians(-45), math.radians(0)), False)
sketch7.addGeometry(Part.LineSegment(Vector(-70, 90, 0), Vector(-70, 48.757359, 0)), False)
sketch7.addGeometry(Part.ArcOfCircle(Part.Circle(Vector(-73, 48.757359, 0), Vector(0, 0, 1), 3), math.radians(0), math.radians(45)), False)
sketch7.addGeometry(Part.LineSegment(Vector(-70.87868, 50.87868, 0), Vector(-89.12132, 69.12132, 0)), False)
sketch7.addGeometry(Part.ArcOfCircle(Part.Circle(Vector(-87, 71.242641, 0), Vector(0, 0, 1), 3), math.radians(180), math.radians(225)), False)
sketch7.addGeometry(Part.LineSegment(Vector(-90, 71.242641, 0), Vector(-90, 78.757359, 0)), False)
sketch7.addGeometry(Part.ArcOfCircle(Part.Circle(Vector(-87, 78.757359, 0), Vector(0, 0, 1), 3), math.radians(135), math.radians(180)), False)
sketch7.addGeometry(Part.LineSegment(Vector(-89.12132, 80.87868, 0), Vector(-80.87868, 89.12132, 0)), False)
sketch7.addGeometry(Part.ArcOfCircle(Part.Circle(Vector(-78.757359, 87, 0), Vector(0, 0, 1), 3), math.radians(90), math.radians(135)), False)
sketch7.addGeometry(Part.LineSegment(Vector(-78.757359, 90, 0), Vector(-70, 90, 0)), False)
sketch7.addGeometry(Part.ArcOfCircle(Part.Circle(Vector(73, 48.757359, 0), Vector(0, 0, 1), 3), math.radians(135), math.radians(180)), False)
sketch7.addGeometry(Part.LineSegment(Vector(70, 48.757359, 0), Vector(70, 90, 0)), False)
sketch7.addGeometry(Part.LineSegment(Vector(70, 90, 0), Vector(78.757359, 90, 0)), False)
sketch7.addGeometry(Part.ArcOfCircle(Part.Circle(Vector(78.757359, 87, 0), Vector(0, 0, 1), 3), math.radians(45), math.radians(90)), False)
sketch7.addGeometry(Part.LineSegment(Vector(80.87868, 89.12132, 0), Vector(89.12132, 80.87868, 0)), False)
sketch7.addGeometry(Part.ArcOfCircle(Part.Circle(Vector(87, 78.757359, 0), Vector(0, 0, 1), 3), math.radians(0), math.radians(45)), False)
sketch7.addGeometry(Part.LineSegment(Vector(90, 78.757359, 0), Vector(90, 71.242641, 0)), False)
sketch7.addGeometry(Part.ArcOfCircle(Part.Circle(Vector(87, 71.242641, 0), Vector(0, 0, 1), 3), math.radians(-45), math.radians(0)), False)
sketch7.addGeometry(Part.LineSegment(Vector(89.12132, 69.12132, 0), Vector(70.87868, 50.87868, 0)), False)
sketch7.addGeometry(Part.LineSegment(Vector(78.757359, -90, 0), Vector(70, -90, 0)), False)
sketch7.addGeometry(Part.LineSegment(Vector(70, -90, 0), Vector(70, -48.757359, 0)), False)
sketch7.addGeometry(Part.ArcOfCircle(Part.Circle(Vector(73, -48.757359, 0), Vector(0, 0, 1), 3), math.radians(180), math.radians(225)), False)
sketch7.addGeometry(Part.LineSegment(Vector(70.87868, -50.87868, 0), Vector(89.12132, -69.12132, 0)), False)
sketch7.addGeometry(Part.ArcOfCircle(Part.Circle(Vector(87, -71.242641, 0), Vector(0, 0, 1), 3), math.radians(0), math.radians(45)), False)
sketch7.addGeometry(Part.LineSegment(Vector(90, -71.242641, 0), Vector(90, -78.757359, 0)), False)
sketch7.addGeometry(Part.ArcOfCircle(Part.Circle(Vector(87, -78.757359, 0), Vector(0, 0, 1), 3), math.radians(-45), math.radians(0)), False)
sketch7.addGeometry(Part.LineSegment(Vector(89.12132, -80.87868, 0), Vector(80.87868, -89.12132, 0)), False)
sketch7.addGeometry(Part.ArcOfCircle(Part.Circle(Vector(78.757359, -87, 0), Vector(0, 0, 1), 3), math.radians(-90), math.radians(-45)), False)
sketch7.addGeometry(Part.Circle(Vector(-65, 0, 0), Vector(0, 0, 1), 1.6), False)
sketch7.addGeometry(Part.Circle(Vector(-25, 0, 0), Vector(0, 0, 1), 1.6), False)
sketch7.addGeometry(Part.Circle(Vector(25, 0, 0), Vector(0, 0, 1), 1.6), False)
sketch7.addGeometry(Part.Circle(Vector(65, 0, 0), Vector(0, 0, 1), 1.6), False)
sketch7.addConstraint(Sketcher.Constraint("Coincident", 0, 2, 1, 1))
sketch7.addConstraint(Sketcher.Constraint("Tangent", 1, 2, 2, 2))
sketch7.addConstraint(Sketcher.Constraint("Tangent", 2, 1, 3, 1))
sketch7.addConstraint(Sketcher.Constraint("Tangent", 3, 2, 4, 2))
sketch7.addConstraint(Sketcher.Constraint("Tangent", 4, 1, 5, 1))
sketch7.addConstraint(Sketcher.Constraint("Tangent", 5, 2, 6, 2))
sketch7.addConstraint(Sketcher.Constraint("Tangent", 6, 1, 7, 1))
sketch7.addConstraint(Sketcher.Constraint("Tangent", 7, 2, 8, 1))
sketch7.addConstraint(Sketcher.Constraint("Tangent", 8, 2, 0, 1))
sketch7.addConstraint(Sketcher.Constraint("Tangent", 9, 2, 10, 1))
sketch7.addConstraint(Sketcher.Constraint("Tangent", 10, 2, 11, 1))
sketch7.addConstraint(Sketcher.Constraint("Tangent", 11, 2, 12, 2))
sketch7.addConstraint(Sketcher.Constraint("Tangent", 12, 1, 13, 1))
sketch7.addConstraint(Sketcher.Constraint("Tangent", 13, 2, 14, 2))
sketch7.addConstraint(Sketcher.Constraint("Tangent", 14, 1, 15, 1))
sketch7.addConstraint(Sketcher.Constraint("Tangent", 15, 2, 16, 2))
sketch7.addConstraint(Sketcher.Constraint("Tangent", 16, 1, 17, 1))
sketch7.addConstraint(Sketcher.Constraint("Coincident", 17, 2, 9, 1))
sketch7.addConstraint(Sketcher.Constraint("Tangent", 18, 2, 19, 1))
sketch7.addConstraint(Sketcher.Constraint("Coincident", 19, 2, 20, 1))
sketch7.addConstraint(Sketcher.Constraint("Tangent", 20, 2, 21, 2))
sketch7.addConstraint(Sketcher.Constraint("Tangent", 21, 1, 22, 1))
sketch7.addConstraint(Sketcher.Constraint("Tangent", 22, 2, 23, 2))
sketch7.addConstraint(Sketcher.Constraint("Tangent", 23, 1, 24, 1))
sketch7.addConstraint(Sketcher.Constraint("Tangent", 24, 2, 25, 2))
sketch7.addConstraint(Sketcher.Constraint("Tangent", 25, 1, 26, 1))
sketch7.addConstraint(Sketcher.Constraint("Tangent", 26, 2, 18, 1))
sketch7.addConstraint(Sketcher.Constraint("Coincident", 27, 2, 28, 1))
sketch7.addConstraint(Sketcher.Constraint("Tangent", 28, 2, 29, 1))
sketch7.addConstraint(Sketcher.Constraint("Tangent", 29, 2, 30, 1))
sketch7.addConstraint(Sketcher.Constraint("Tangent", 30, 2, 31, 2))
sketch7.addConstraint(Sketcher.Constraint("Tangent", 31, 1, 32, 1))
sketch7.addConstraint(Sketcher.Constraint("Tangent", 32, 2, 33, 2))
sketch7.addConstraint(Sketcher.Constraint("Tangent", 33, 1, 34, 1))
sketch7.addConstraint(Sketcher.Constraint("Tangent", 34, 2, 35, 2))
sketch7.addConstraint(Sketcher.Constraint("Tangent", 35, 1, 27, 1))
sketch7.addConstraint(Sketcher.Constraint("Vertical", 0))
sketch7.addConstraint(Sketcher.Constraint("Horizontal", 1))
sketch7.addConstraint(Sketcher.Constraint("Vertical", 5))
sketch7.addConstraint(Sketcher.Constraint("Vertical", 9))
sketch7.addConstraint(Sketcher.Constraint("Vertical", 13))
sketch7.addConstraint(Sketcher.Constraint("Horizontal", 17))
sketch7.addConstraint(Sketcher.Constraint("Vertical", 19))
sketch7.addConstraint(Sketcher.Constraint("Horizontal", 20))
sketch7.addConstraint(Sketcher.Constraint("Vertical", 24))
sketch7.addConstraint(Sketcher.Constraint("Horizontal", 27))
sketch7.addConstraint(Sketcher.Constraint("Vertical", 28))
sketch7.addConstraint(Sketcher.Constraint("Vertical", 32))
sketch7.addConstraint(Sketcher.Constraint("Equal", 2, 4))
sketch7.addConstraint(Sketcher.Constraint("Equal", 4, 6))
sketch7.addConstraint(Sketcher.Constraint("Equal", 6, 8))
sketch7.addConstraint(Sketcher.Constraint("Equal", 8, 10))
sketch7.addConstraint(Sketcher.Constraint("Equal", 10, 12))
sketch7.addConstraint(Sketcher.Constraint("Equal", 12, 14))
sketch7.addConstraint(Sketcher.Constraint("Equal", 14, 16))
sketch7.addConstraint(Sketcher.Constraint("Equal", 16, 18))
sketch7.addConstraint(Sketcher.Constraint("Equal", 18, 21))
sketch7.addConstraint(Sketcher.Constraint("Equal", 21, 23))
sketch7.addConstraint(Sketcher.Constraint("Equal", 23, 25))
sketch7.addConstraint(Sketcher.Constraint("Equal", 25, 29))
sketch7.addConstraint(Sketcher.Constraint("Equal", 29, 31))
sketch7.addConstraint(Sketcher.Constraint("Equal", 31, 33))
sketch7.addConstraint(Sketcher.Constraint("Equal", 33, 35))
sketch7.addConstraint(Sketcher.Constraint("Equal", 36, 37))
sketch7.addConstraint(Sketcher.Constraint("Equal", 37, 38))
sketch7.addConstraint(Sketcher.Constraint("Equal", 38, 39))
sketch7.addConstraint(Sketcher.Constraint("Symmetric", 8, 3, 18, 3, -1, 1))
sketch7.addConstraint(Sketcher.Constraint("Symmetric", 2, 3, 21, 3, -1, 1))
sketch7.addConstraint(Sketcher.Constraint("Symmetric", 4, 3, 23, 3, -1, 1))
sketch7.addConstraint(Sketcher.Constraint("Symmetric", 10, 3, 29, 3, -1, 1))
sketch7.addConstraint(Sketcher.Constraint("Symmetric", 12, 3, 31, 3, -1, 1))
sketch7.addConstraint(Sketcher.Constraint("Symmetric", 16, 3, 35, 3, -1, 1))
sketch7.addConstraint(Sketcher.Constraint("Symmetric", 37, 3, 38, 3, -1, 1))
sketch7.addConstraint(Sketcher.Constraint("Symmetric", 36, 3, 39, 3, -1, 1))
sketch7.addConstraint(Sketcher.Constraint("Symmetric", 10, 3, 18, 3, -2))
sketch7.addConstraint(Sketcher.Constraint("Symmetric", 16, 3, 21, 3, -2))
sketch7.addConstraint(Sketcher.Constraint("Symmetric", 14, 3, 23, 3, -2))
sketch7.addConstraint(Sketcher.Constraint("PointOnObject", 36, 3, -1))
sketch7.addConstraint(Sketcher.Constraint("PointOnObject", 37, 3, -1))
sketch7.addConstraint(Sketcher.Constraint("Perpendicular", 3, 7))
sketch7.addConstraint(Sketcher.Constraint("Perpendicular", 7, 11))
sketch7.addConstraint(Sketcher.Constraint("Perpendicular", 11, 15))
sketch7.addConstraint(Sketcher.Constraint("Perpendicular", 22, 26))
sketch7.addConstraint(Sketcher.Constraint("Perpendicular", 30, 34))
sketch7.addConstraint(Sketcher.Constraint("Radius", 2, 3.0))
sketch7.addConstraint(Sketcher.Constraint("Diameter", 36, 3.2))
sketch7.addConstraint(Sketcher.Constraint("DistanceY", 2, 3, -1, 1, 87.0))
sketch7.addConstraint(Sketcher.Constraint("DistanceX", 4, 3, -1, 1, 87.0))
sketch7.addConstraint(Sketcher.Constraint("DistanceX", 8, 3, -1, 1, 73.0))
sketch7.addConstraint(Sketcher.Constraint("DistanceX", 36, 3, -1, 1, 65.0))
sketch7.addConstraint(Sketcher.Constraint("DistanceX", 37, 3, -1, 1, 25.0))
sketch7.addConstraint(Sketcher.Constraint("DistanceY", 4, 3, 8, 3, 30.0))
sketch7.addConstraint(Sketcher.Constraint("DistanceY", 6, 3, 10, 3, 120.0))
pocket6 = body.newObject("PartDesign::Pocket", "Pocket005")
pocket6.Profile = sketch7
pocket6.Type = "ThroughAll"
pocket6.Midplane = True
doc.recompute()

fillet4 = body.newObject("PartDesign::Fillet", "Fillet003")
fillet4.Base = (pocket6, edges_at(pocket6, [
    (-70, 1, 90),
    (70, 1, 90),
    (70, 1, -90),
    (-70, 1, -90),
]))
fillet4.Radius = 2

doc.recompute()
